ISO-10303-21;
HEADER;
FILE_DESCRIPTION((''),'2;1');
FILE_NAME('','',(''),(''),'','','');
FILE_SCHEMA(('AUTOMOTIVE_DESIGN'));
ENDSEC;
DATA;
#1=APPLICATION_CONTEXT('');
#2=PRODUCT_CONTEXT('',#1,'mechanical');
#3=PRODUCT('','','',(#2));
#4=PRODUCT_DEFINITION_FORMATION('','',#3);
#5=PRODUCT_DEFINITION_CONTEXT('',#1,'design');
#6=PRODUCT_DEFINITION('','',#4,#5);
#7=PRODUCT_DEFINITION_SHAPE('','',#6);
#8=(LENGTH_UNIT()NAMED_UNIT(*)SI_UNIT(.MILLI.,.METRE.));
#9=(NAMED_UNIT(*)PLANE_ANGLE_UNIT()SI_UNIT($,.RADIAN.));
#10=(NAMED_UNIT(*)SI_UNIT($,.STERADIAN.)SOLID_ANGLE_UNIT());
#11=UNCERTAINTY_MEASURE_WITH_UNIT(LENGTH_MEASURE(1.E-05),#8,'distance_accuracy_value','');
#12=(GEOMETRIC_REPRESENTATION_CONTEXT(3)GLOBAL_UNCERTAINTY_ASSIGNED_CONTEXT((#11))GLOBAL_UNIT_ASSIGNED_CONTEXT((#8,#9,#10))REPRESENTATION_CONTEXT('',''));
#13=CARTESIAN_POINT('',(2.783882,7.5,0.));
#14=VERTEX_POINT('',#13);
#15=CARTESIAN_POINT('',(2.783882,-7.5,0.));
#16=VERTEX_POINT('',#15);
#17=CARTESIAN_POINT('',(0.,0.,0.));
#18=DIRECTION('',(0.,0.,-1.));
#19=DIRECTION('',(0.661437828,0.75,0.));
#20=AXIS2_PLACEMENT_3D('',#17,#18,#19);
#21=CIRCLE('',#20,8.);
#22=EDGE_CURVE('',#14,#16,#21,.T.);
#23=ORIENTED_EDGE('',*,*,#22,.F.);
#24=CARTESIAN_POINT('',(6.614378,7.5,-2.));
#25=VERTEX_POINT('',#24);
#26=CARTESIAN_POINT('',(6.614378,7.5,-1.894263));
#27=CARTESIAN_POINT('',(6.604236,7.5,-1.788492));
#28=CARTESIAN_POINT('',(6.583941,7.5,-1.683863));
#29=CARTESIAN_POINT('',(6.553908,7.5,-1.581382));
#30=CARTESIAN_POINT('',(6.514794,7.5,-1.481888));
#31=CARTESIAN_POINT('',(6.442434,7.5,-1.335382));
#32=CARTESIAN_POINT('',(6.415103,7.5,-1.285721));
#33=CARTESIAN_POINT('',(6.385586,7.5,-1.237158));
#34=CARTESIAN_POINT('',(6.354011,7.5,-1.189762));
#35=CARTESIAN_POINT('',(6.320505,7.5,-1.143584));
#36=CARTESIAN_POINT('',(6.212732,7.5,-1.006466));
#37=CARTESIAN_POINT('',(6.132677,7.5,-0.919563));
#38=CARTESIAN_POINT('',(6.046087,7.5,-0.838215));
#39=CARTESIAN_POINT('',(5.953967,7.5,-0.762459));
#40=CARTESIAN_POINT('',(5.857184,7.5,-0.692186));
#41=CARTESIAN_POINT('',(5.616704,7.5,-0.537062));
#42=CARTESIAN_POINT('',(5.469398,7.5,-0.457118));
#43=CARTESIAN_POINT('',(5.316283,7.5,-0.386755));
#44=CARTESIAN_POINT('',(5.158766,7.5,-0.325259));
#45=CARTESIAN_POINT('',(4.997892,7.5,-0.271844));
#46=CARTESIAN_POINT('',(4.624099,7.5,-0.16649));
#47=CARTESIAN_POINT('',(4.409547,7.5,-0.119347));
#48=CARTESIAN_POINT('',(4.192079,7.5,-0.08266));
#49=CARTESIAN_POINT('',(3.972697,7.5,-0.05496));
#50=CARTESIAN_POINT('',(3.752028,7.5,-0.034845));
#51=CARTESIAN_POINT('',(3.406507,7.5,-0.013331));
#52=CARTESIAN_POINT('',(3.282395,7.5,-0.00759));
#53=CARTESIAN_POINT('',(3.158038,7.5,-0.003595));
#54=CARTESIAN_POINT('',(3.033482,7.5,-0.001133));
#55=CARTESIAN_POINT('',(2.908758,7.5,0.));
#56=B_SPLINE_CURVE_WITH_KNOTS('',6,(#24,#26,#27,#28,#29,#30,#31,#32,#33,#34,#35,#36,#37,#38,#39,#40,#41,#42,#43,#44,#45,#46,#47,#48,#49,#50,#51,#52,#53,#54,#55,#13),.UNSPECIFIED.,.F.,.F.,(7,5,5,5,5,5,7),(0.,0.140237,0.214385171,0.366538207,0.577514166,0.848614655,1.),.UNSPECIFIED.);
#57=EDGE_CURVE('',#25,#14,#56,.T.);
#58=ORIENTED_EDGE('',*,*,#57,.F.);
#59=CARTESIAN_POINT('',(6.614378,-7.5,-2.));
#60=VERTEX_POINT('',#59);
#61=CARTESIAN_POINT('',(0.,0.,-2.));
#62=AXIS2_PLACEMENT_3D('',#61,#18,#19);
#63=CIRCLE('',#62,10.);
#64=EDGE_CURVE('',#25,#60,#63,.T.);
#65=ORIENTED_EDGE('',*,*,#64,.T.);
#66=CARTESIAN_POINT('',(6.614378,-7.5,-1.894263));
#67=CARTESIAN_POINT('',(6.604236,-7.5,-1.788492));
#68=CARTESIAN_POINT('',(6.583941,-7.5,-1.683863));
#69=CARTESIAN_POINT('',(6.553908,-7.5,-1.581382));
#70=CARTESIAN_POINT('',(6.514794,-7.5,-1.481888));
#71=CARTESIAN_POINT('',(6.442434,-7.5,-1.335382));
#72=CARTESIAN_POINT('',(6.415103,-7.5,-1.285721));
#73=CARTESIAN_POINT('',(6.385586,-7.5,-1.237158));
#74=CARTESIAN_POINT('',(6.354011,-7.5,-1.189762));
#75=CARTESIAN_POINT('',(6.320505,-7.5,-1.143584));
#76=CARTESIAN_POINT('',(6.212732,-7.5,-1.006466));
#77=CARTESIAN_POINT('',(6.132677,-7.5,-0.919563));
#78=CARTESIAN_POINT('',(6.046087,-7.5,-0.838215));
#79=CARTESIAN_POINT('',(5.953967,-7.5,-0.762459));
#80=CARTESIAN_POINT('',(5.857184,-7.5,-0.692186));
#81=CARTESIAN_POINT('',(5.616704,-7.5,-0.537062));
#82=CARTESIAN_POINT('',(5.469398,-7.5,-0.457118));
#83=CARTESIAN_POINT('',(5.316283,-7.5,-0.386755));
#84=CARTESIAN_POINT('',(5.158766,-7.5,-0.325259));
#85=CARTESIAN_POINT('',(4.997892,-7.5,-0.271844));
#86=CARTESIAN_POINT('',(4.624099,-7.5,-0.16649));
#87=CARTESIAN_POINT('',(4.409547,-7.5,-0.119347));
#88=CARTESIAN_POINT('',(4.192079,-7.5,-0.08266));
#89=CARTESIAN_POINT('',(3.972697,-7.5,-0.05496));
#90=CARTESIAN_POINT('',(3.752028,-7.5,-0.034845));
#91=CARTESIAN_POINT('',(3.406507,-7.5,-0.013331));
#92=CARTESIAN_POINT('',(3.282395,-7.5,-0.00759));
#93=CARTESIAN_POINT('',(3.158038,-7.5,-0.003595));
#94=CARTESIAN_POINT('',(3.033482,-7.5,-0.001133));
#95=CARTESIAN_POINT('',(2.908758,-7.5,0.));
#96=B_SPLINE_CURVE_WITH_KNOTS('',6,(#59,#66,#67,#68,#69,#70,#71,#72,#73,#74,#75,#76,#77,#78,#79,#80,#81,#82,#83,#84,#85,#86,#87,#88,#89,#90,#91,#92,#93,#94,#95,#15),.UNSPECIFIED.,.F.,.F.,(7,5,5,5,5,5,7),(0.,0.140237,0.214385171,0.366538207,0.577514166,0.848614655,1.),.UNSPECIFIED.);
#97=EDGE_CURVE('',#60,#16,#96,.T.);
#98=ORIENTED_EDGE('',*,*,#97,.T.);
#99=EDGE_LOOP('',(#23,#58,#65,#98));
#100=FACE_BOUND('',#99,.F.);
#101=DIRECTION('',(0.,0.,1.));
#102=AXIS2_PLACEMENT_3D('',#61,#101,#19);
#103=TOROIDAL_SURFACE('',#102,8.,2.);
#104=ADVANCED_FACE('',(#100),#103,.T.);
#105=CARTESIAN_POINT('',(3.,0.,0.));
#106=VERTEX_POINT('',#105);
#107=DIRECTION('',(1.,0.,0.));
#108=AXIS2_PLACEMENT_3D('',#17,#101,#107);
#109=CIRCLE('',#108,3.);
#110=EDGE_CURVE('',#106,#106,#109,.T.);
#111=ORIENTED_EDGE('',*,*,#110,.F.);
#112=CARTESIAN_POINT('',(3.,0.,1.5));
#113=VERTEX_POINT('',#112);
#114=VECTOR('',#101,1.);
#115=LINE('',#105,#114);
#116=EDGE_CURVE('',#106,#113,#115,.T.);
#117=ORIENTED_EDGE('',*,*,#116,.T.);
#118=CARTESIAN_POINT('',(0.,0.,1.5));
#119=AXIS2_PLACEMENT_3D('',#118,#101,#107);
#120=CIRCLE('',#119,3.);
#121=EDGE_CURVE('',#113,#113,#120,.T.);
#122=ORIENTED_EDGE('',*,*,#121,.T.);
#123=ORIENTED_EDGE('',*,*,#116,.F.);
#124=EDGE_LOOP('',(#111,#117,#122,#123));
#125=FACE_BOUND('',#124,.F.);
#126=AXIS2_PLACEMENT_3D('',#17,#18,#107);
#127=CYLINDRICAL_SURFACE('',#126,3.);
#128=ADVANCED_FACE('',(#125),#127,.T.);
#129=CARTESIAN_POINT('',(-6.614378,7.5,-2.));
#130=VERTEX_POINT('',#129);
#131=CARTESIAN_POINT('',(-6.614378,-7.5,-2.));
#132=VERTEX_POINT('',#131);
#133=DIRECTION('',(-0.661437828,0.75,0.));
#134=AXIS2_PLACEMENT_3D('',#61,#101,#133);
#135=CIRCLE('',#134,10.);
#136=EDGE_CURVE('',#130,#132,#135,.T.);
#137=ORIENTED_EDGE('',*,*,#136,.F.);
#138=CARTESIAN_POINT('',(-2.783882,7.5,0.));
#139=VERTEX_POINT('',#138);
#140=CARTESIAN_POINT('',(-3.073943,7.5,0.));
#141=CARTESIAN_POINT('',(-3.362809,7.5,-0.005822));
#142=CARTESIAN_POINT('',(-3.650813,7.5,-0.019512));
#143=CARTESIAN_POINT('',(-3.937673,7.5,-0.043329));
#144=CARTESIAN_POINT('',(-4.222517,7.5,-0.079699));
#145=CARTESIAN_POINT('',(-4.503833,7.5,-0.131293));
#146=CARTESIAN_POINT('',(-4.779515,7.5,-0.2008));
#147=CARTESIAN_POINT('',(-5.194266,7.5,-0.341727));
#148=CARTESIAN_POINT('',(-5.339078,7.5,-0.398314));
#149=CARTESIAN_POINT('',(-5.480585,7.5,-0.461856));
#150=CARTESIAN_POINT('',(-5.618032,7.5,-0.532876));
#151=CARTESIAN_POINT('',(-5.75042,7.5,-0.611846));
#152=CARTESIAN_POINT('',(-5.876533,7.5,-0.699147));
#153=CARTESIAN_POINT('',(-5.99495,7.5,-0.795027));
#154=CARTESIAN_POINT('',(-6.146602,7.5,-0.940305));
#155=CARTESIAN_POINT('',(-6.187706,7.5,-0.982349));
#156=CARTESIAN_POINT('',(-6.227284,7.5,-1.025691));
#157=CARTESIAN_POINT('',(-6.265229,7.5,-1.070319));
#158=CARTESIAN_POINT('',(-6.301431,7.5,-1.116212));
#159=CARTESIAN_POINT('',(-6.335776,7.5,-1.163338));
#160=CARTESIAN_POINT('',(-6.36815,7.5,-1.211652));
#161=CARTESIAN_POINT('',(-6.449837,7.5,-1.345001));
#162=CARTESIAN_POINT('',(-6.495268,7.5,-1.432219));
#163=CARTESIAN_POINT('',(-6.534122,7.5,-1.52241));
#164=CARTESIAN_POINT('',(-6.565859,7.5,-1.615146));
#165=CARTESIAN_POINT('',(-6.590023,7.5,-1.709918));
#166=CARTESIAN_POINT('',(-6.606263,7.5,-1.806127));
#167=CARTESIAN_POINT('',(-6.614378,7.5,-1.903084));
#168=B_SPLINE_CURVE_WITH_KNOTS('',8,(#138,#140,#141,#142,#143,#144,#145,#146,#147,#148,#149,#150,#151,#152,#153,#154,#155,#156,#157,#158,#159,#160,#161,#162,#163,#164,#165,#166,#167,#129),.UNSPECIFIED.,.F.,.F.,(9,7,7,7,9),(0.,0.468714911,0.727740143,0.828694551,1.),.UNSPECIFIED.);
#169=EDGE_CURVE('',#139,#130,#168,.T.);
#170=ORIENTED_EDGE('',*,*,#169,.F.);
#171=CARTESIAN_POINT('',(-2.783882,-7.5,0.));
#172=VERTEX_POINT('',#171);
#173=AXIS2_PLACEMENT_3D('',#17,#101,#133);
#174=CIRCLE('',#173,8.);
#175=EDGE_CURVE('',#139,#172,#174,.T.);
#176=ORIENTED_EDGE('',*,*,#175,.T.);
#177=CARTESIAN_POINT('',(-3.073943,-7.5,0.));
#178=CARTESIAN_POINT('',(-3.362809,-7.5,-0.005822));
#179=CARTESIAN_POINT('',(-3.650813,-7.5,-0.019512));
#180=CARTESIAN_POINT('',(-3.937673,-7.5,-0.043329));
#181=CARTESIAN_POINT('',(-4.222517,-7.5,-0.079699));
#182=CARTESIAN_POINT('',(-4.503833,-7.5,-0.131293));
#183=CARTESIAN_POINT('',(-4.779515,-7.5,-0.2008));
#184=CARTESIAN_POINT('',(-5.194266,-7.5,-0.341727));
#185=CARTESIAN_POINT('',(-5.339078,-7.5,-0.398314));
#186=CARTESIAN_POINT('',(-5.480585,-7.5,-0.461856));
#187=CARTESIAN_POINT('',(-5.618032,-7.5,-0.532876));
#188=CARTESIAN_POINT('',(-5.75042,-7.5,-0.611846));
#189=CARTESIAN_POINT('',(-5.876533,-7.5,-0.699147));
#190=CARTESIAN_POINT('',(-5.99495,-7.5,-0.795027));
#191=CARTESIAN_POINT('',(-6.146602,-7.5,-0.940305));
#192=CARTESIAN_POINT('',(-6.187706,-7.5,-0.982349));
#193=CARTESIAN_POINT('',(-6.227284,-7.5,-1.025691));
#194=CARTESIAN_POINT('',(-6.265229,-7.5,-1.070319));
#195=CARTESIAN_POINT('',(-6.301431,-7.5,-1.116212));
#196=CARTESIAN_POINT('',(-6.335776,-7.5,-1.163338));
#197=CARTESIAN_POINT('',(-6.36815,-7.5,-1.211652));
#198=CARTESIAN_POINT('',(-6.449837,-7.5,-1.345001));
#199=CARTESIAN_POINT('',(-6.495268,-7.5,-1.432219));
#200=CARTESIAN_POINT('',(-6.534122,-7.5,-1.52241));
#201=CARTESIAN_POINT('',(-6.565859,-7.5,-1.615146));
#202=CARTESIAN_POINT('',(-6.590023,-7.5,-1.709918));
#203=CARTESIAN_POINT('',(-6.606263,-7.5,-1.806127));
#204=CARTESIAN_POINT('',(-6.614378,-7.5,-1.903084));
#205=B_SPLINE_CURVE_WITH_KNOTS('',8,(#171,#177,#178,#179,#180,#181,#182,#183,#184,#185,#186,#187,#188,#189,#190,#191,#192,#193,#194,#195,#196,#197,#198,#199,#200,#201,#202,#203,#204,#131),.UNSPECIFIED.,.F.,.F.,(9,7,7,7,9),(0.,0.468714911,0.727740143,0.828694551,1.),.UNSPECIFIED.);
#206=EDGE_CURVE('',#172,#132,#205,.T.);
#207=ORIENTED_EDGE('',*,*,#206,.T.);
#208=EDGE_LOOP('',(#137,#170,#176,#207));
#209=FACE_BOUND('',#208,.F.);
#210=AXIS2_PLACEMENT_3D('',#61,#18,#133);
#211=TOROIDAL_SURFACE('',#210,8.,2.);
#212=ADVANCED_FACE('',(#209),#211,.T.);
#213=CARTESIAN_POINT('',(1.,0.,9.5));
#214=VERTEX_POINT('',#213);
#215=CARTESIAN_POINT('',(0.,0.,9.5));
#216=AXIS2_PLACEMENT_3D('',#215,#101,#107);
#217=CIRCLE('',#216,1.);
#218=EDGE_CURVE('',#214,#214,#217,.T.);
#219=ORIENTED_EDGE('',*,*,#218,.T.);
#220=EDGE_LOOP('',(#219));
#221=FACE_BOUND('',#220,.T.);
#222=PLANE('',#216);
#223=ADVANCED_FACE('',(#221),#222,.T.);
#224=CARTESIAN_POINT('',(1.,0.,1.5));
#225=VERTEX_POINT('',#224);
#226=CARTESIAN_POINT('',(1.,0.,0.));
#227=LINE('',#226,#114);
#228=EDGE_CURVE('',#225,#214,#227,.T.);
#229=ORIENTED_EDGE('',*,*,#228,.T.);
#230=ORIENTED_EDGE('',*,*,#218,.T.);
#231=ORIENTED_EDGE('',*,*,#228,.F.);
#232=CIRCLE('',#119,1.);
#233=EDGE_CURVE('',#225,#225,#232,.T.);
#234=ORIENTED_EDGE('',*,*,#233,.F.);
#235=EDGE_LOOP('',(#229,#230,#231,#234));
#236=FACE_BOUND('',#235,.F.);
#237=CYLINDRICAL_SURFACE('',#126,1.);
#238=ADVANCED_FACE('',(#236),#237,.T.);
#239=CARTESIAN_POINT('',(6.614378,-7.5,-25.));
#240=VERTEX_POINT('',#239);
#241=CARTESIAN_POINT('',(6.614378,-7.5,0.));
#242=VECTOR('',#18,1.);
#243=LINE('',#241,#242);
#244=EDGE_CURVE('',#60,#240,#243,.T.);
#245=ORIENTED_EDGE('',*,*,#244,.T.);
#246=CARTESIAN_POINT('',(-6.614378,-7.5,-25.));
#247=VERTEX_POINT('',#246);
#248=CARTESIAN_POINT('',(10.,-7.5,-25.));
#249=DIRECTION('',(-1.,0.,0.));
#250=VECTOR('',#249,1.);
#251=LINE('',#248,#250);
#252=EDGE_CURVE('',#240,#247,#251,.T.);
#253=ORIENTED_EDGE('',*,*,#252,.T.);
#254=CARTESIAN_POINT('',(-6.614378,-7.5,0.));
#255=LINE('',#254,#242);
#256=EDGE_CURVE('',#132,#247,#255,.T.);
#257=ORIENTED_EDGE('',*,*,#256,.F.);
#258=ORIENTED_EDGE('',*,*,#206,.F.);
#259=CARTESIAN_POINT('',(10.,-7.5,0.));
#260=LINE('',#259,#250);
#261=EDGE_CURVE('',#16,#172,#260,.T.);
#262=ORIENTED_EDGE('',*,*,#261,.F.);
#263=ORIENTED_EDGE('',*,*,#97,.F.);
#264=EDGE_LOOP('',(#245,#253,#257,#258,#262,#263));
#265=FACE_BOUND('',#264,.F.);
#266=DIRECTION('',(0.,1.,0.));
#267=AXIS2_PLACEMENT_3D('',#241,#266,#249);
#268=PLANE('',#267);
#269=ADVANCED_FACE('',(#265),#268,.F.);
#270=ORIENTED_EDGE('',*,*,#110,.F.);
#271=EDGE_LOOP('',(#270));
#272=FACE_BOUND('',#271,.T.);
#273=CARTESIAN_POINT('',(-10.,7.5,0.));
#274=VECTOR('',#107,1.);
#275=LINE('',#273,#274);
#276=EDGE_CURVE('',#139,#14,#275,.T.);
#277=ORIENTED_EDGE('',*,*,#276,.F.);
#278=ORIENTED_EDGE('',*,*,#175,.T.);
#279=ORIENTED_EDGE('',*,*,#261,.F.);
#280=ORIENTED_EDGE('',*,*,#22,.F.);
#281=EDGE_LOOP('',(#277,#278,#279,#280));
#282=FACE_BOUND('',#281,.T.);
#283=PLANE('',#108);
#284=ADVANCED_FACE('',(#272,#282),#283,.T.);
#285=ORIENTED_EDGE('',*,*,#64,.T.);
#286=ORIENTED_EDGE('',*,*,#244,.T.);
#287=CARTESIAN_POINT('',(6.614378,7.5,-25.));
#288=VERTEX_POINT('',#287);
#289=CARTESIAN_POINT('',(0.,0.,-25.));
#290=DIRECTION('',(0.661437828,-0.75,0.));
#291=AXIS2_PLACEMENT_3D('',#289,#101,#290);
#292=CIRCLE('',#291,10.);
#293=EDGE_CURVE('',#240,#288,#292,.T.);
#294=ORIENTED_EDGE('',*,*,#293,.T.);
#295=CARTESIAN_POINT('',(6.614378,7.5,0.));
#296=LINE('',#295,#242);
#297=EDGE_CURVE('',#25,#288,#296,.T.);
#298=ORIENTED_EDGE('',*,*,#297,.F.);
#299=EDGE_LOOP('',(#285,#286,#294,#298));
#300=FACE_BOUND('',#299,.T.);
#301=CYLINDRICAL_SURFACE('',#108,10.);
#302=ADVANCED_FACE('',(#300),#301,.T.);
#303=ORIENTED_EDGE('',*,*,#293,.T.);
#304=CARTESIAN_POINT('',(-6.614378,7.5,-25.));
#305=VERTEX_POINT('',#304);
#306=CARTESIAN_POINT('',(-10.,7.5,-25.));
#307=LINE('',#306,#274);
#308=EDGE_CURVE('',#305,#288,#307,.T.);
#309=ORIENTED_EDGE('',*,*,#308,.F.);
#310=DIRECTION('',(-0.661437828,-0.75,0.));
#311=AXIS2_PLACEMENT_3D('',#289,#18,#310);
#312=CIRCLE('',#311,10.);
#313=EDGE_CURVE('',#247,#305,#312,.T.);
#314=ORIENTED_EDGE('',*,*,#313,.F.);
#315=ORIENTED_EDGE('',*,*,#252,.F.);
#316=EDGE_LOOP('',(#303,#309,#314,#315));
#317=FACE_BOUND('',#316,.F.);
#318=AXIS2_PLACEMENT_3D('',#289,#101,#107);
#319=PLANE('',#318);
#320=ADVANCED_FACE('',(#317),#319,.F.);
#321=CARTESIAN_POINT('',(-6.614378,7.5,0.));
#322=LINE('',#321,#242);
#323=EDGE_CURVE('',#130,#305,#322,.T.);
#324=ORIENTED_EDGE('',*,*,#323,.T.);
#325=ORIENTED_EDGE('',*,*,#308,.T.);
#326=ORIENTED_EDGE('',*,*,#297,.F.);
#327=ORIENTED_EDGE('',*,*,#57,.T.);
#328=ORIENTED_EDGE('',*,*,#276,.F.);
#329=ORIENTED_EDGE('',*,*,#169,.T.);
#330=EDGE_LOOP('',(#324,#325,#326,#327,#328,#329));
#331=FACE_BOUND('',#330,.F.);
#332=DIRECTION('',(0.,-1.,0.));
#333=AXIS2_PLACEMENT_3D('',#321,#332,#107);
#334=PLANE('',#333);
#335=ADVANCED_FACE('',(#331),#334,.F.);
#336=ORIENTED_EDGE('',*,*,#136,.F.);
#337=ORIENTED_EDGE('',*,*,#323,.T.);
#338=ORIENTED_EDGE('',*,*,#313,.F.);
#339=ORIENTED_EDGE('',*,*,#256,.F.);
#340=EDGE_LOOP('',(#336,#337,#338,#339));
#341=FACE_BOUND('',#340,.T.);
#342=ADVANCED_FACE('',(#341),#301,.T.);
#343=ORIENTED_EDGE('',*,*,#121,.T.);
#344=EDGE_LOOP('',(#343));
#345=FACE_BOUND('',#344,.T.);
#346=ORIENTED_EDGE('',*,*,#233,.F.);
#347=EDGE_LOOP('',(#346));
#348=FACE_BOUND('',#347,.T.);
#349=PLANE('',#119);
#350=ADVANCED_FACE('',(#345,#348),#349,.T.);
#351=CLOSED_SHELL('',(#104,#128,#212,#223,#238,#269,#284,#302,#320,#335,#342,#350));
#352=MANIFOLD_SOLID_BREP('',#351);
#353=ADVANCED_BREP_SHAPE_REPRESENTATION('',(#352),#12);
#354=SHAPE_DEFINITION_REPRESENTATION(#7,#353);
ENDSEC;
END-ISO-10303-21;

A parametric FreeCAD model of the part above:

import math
import FreeCAD as App
import Part
import Sketcher

V = App.Vector
Q = App.Units.Quantity


def edges_at(feature, points):
    """Names of the edges that pass closest to the given points."""
    edges = feature.Shape.Edges
    near = lambda p: min(range(len(edges)), key=lambda i: edges[i].distToShape(Part.Vertex(*p))[0])
    return sorted({f"Edge{near(p) + 1}" for p in points})

doc = App.newDocument("Part")
params = doc.addObject("Spreadsheet::Sheet", "Params")
for row, (alias, value) in enumerate([
    ("sketch1_diameter", "6 mm"),
    ("sketch1_diameter2", "2 mm"),
    ("pad1_length", "1.5 mm"),
    ("sketch2_diameter", "2 mm"),
    ("pad2_length", "9.5 mm"),
    ("sketch3_radius", "10 mm"),
    ("pad3_length", "25 mm"),
    ("fillet_radius", "2 mm"),
], start=1):
    params.set(f"A{row}", alias)
    params.set(f"B{row}", "=" + value)
    params.setAlias(f"B{row}", alias)

body = doc.addObject("PartDesign::Body", "Body")

# Sketch on XY plane
sketch1 = body.newObject("Sketcher::SketchObject", "Sketch")
sketch1.AttachmentSupport = (doc.getObject("XY_Plane"), [""])
sketch1.MapMode = "FlatFace"
sketch1.addGeometry([
    Part.Circle(V(0, 0, 0), V(0, 0, 1), 3),
    Part.Circle(V(0, 0, 0), V(0, 0, 1), 1),
], False)
sketch1.addConstraint([
    Sketcher.Constraint("Coincident", 0, 3, -1, 1),
    Sketcher.Constraint("Coincident", 1, 3, -1, 1),
    Sketcher.Constraint("Diameter", 0, Q("6 mm")),
    Sketcher.Constraint("Diameter", 1, Q("2 mm")),
])
sketch1.setExpression("Constraints[2]", "Params.sketch1_diameter")
sketch1.setExpression("Constraints[3]", "Params.sketch1_diameter2")
pad1 = body.newObject("PartDesign::Pad", "Pad")
pad1.Profile = sketch1
pad1.setExpression("Length", "Params.pad1_length")

# Sketch on XY plane
sketch2 = body.newObject("Sketcher::SketchObject", "Sketch001")
sketch2.AttachmentSupport = (doc.getObject("XY_Plane"), [""])
sketch2.MapMode = "FlatFace"
sketch2.addGeometry(Part.Circle(V(0, 0, 0), V(0, 0, 1), 1), False)
sketch2.addConstraint([
    Sketcher.Constraint("Coincident", 0, 3, -1, 1),
    Sketcher.Constraint("Diameter", 0, Q("2 mm")),
])
sketch2.setExpression("Constraints[1]", "Params.sketch2_diameter")
pad2 = body.newObject("PartDesign::Pad", "Pad001")
pad2.Profile = sketch2
pad2.setExpression("Length", "Params.pad2_length")

# Sketch on XY plane
sketch3 = body.newObject("Sketcher::SketchObject", "Sketch002")
sketch3.AttachmentSupport = (doc.getObject("XY_Plane"), [""])
sketch3.MapMode = "FlatFace"
sketch3.addGeometry([
    Part.ArcOfCircle(Part.Circle(V(0, 0, 0), V(0, 0, 1), 10), math.radians(-48.590378), math.radians(48.590378)),
    Part.LineSegment(V(6.614378, 7.5, 0), V(-6.614378, 7.5, 0)),
    Part.ArcOfCircle(Part.Circle(V(0, 0, 0), V(0, 0, 1), 10), math.radians(131.409622), math.radians(228.590378)),
    Part.LineSegment(V(-6.614378, -7.5, 0), V(6.614378, -7.5, 0)),
], False)
sketch3.addConstraint([
    Sketcher.Constraint("Coincident", 0, 2, 1, 1),
    Sketcher.Constraint("Coincident", 1, 2, 2, 1),
    Sketcher.Constraint("Coincident", 2, 2, 3, 1),
    Sketcher.Constraint("Coincident", 3, 2, 0, 1),
    Sketcher.Constraint("Horizontal", 1),
    Sketcher.Constraint("Horizontal", 3),
    Sketcher.Constraint("Coincident", 0, 3, -1, 1),
    Sketcher.Constraint("Coincident", 2, 3, -1, 1),
    Sketcher.Constraint("Equal", 0, 2),
    Sketcher.Constraint("Vertical", 1, 2, 2, 2),
    Sketcher.Constraint("Radius", 0, Q("10 mm")),
    Sketcher.Constraint("DistanceY", 2, 2, 1, 2, Q("15 mm")),
])
sketch3.setExpression("Constraints[10]", "Params.sketch3_radius")
pad3 = body.newObject("PartDesign::Pad", "Pad002")
pad3.Profile = sketch3
pad3.setExpression("Length", "Params.pad3_length")
pad3.Reversed = True
doc.recompute()

fillet = body.newObject("PartDesign::Fillet", "Fillet")
fillet.Base = (pad3, edges_at(pad3, [(-10, 0, 0), (10, 0, 0)]))
fillet.setExpression("Radius", "Params.fillet_radius")

doc.recompute()
